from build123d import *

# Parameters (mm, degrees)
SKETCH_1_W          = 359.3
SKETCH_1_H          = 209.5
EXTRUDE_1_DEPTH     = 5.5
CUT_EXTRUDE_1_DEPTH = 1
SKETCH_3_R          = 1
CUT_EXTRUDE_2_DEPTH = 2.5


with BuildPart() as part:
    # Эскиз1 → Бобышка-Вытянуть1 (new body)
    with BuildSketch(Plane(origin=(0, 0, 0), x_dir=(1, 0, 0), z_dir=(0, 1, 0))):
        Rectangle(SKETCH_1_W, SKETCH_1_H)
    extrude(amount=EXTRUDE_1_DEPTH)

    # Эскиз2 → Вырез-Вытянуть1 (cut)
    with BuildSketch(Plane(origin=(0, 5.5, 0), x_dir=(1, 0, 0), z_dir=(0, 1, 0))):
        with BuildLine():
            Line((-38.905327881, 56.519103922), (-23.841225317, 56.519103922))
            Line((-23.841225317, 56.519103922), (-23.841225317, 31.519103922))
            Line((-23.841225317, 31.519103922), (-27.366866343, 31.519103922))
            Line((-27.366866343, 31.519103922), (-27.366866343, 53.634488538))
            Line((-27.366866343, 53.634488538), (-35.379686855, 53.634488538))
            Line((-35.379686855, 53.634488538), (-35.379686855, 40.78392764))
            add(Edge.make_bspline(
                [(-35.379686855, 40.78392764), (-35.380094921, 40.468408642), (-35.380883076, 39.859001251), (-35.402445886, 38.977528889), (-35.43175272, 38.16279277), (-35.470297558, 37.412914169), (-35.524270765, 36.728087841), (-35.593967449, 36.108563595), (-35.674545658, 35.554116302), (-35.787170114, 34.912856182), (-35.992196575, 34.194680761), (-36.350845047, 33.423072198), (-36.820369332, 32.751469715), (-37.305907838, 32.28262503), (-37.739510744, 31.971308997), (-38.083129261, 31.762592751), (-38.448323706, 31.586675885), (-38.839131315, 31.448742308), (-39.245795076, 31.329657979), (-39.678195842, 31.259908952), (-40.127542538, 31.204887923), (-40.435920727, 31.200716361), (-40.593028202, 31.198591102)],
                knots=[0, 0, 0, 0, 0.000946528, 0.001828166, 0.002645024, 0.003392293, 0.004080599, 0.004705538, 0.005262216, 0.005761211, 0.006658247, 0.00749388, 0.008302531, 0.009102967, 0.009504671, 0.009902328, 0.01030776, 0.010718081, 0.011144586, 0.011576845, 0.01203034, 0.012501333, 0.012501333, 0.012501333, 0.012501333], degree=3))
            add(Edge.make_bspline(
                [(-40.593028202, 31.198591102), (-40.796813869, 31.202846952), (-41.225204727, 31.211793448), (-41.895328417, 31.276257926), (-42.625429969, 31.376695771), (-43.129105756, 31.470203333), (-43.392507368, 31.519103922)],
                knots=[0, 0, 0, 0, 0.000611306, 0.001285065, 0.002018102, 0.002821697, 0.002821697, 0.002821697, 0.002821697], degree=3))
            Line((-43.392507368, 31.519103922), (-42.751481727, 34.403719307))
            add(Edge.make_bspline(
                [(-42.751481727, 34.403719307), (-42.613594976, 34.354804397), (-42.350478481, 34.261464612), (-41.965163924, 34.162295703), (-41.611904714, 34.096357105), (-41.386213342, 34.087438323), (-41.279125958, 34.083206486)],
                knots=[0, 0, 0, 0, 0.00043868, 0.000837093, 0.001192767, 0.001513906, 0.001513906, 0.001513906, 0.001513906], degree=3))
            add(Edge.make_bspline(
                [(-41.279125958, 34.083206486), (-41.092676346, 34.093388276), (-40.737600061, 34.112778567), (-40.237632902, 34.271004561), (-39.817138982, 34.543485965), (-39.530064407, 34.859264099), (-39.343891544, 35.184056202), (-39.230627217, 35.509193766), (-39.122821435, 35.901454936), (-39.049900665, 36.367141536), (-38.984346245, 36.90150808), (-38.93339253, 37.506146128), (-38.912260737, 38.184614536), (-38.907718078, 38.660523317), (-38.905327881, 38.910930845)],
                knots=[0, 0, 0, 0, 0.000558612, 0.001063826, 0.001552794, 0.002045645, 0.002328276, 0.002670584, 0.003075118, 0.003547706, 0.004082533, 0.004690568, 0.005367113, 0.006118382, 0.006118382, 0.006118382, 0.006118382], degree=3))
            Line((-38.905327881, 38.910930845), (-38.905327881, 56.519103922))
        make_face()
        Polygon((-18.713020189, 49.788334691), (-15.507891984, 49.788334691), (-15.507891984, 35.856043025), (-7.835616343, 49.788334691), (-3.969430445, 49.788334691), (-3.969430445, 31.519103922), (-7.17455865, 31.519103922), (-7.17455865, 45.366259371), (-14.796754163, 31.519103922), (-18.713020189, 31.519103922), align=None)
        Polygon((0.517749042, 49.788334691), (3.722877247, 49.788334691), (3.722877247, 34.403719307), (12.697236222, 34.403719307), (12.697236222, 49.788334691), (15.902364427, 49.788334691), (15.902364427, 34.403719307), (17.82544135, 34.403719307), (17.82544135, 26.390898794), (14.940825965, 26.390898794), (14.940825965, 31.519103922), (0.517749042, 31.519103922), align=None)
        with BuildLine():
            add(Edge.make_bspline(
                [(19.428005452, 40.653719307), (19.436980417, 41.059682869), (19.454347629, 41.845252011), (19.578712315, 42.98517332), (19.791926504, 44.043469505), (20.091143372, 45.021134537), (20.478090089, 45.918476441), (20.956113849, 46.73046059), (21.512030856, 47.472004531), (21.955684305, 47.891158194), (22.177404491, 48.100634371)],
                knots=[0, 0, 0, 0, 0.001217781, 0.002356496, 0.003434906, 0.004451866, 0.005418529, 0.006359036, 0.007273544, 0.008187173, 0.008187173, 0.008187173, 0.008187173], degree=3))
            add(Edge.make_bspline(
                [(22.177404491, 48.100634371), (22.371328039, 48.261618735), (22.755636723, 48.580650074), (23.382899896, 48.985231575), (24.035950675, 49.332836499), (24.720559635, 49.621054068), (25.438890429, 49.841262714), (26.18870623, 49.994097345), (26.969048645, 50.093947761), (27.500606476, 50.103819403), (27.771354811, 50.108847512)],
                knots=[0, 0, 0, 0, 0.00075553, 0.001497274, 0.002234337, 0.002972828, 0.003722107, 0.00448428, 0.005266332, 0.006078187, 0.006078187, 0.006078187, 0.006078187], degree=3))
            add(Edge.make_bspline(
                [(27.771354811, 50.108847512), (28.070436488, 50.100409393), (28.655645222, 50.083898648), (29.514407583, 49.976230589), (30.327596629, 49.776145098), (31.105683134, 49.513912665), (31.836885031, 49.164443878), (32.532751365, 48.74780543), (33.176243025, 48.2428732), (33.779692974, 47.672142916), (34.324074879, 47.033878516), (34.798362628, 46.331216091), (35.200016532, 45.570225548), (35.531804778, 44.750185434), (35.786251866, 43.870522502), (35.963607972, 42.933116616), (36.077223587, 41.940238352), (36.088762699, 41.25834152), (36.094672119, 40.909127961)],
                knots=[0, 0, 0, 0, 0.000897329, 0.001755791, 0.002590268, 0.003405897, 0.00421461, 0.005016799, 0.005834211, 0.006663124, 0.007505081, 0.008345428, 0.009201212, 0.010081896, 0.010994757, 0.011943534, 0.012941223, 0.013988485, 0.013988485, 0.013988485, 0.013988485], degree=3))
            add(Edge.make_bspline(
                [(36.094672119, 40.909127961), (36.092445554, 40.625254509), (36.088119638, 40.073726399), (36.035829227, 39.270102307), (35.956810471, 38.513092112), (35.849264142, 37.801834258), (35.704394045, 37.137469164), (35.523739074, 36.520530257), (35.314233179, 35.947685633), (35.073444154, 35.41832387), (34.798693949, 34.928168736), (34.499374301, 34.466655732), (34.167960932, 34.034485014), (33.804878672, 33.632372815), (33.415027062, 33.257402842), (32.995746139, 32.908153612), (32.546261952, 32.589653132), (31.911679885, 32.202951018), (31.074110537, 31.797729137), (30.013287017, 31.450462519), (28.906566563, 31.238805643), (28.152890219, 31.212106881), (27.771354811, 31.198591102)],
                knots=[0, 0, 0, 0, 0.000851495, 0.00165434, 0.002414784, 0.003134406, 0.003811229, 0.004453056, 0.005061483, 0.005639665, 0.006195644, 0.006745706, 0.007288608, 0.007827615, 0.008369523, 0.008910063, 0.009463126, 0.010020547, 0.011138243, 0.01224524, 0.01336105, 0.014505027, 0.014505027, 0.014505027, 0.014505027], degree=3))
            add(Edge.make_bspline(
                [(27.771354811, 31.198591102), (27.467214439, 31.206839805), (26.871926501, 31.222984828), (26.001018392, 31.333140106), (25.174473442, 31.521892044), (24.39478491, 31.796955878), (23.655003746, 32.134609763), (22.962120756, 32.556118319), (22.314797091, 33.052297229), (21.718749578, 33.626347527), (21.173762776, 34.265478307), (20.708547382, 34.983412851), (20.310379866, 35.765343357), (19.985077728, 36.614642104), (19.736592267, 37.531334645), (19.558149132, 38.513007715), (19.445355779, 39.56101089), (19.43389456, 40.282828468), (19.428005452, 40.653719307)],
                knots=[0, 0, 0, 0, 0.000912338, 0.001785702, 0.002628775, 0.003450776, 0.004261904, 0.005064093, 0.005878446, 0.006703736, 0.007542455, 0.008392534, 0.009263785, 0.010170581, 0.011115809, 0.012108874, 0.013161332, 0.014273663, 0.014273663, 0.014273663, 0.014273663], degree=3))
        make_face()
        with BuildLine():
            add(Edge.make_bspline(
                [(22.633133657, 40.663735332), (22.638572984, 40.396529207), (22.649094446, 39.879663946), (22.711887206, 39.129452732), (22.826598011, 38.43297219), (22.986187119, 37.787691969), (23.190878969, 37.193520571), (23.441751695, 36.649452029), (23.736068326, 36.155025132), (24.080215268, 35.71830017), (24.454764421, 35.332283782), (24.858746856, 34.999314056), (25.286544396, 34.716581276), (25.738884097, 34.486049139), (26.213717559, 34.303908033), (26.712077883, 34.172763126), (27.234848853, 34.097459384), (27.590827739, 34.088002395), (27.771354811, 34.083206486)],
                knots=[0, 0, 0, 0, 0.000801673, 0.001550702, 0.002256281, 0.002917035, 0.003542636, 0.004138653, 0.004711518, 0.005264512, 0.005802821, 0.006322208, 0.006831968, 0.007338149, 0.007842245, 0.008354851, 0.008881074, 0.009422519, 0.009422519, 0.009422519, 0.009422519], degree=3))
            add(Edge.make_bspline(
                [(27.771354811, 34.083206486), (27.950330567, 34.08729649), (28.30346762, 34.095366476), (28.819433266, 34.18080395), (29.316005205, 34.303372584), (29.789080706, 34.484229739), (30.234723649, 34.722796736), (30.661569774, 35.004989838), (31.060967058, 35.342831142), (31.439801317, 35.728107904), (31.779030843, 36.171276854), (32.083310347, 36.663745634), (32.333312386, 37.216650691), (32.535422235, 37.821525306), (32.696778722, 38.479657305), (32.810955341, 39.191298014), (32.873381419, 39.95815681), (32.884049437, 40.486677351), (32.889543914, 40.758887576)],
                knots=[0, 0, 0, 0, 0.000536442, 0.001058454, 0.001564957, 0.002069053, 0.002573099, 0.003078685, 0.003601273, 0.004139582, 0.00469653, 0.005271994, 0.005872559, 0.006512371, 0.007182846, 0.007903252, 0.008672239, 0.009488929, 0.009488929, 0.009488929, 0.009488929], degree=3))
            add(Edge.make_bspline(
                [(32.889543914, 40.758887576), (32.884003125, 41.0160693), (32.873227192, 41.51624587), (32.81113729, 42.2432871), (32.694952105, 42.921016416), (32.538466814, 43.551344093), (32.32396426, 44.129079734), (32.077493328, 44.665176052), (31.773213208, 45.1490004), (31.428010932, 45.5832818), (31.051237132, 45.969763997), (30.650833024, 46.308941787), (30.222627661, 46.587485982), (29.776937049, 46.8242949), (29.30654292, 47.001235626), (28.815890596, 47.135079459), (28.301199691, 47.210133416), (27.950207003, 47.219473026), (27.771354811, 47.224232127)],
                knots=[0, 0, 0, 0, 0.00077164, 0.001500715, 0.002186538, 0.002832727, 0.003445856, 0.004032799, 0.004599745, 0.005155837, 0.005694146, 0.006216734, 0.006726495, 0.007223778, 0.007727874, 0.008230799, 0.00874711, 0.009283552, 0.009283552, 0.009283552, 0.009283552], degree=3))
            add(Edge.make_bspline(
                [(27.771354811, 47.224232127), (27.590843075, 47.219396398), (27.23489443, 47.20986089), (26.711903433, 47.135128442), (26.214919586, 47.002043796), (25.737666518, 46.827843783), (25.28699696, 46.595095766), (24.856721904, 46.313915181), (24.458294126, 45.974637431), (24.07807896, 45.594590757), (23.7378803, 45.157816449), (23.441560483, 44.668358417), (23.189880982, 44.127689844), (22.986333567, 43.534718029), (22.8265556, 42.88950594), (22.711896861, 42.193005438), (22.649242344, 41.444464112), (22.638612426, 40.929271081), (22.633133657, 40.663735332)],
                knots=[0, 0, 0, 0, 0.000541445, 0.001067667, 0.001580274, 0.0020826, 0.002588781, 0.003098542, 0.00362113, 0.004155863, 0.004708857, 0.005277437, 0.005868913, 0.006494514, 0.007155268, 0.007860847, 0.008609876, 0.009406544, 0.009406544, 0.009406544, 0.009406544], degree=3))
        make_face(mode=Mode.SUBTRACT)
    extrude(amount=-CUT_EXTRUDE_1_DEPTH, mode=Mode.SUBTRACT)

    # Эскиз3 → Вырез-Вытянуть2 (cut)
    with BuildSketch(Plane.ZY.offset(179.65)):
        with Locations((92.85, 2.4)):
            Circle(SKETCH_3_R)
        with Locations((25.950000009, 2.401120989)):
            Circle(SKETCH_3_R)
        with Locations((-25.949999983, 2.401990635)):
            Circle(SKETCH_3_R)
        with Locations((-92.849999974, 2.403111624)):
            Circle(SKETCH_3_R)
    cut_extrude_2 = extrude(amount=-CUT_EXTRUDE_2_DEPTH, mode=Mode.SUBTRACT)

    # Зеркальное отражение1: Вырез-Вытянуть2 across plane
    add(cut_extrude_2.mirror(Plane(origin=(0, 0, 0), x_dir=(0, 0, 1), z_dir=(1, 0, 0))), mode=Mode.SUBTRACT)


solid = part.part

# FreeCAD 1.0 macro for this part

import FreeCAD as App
import Part
import Sketcher

V = App.Vector
Q = App.Units.Quantity

doc = App.newDocument("Part")
params = doc.addObject("Spreadsheet::Sheet", "Params")
for row, (alias, value) in enumerate([
    ("sketch1_width", "359.3 mm"),
    ("sketch1_height", "209.5 mm"),
    ("pad1_length", "5.5 mm"),
    ("sketch2_height", "25 mm"),
    ("pocket1_length", "1 mm"),
    ("sketch3_diameter", "2 mm"),
    ("pocket2_length", "2.5 mm"),
], start=1):
    params.set(f"A{row}", alias)
    params.set(f"B{row}", "=" + value)
    params.setAlias(f"B{row}", alias)

body = doc.addObject("PartDesign::Body", "Body")

sketch1 = body.newObject("Sketcher::SketchObject", "Sketch")
sketch1.AttachmentSupport = (doc.getObject("XZ_Plane"), [""])
sketch1.MapMode = "FlatFace"
sketch1.addGeometry([
    Part.LineSegment(V(-179.65, -104.75, 0), V(-179.65, 104.75, 0)),
    Part.LineSegment(V(-179.65, 104.75, 0), V(179.65, 104.75, 0)),
    Part.LineSegment(V(179.65, 104.75, 0), V(179.65, -104.75, 0)),
    Part.LineSegment(V(179.65, -104.75, 0), V(-179.65, -104.75, 0)),
], False)
sketch1.addConstraint([
    Sketcher.Constraint("Coincident", 0, 2, 1, 1),
    Sketcher.Constraint("Coincident", 1, 2, 2, 1),
    Sketcher.Constraint("Coincident", 2, 2, 3, 1),
    Sketcher.Constraint("Coincident", 3, 2, 0, 1),
    Sketcher.Constraint("Vertical", 0),
    Sketcher.Constraint("Horizontal", 1),
    Sketcher.Constraint("Vertical", 2),
    Sketcher.Constraint("Horizontal", 3),
    Sketcher.Constraint("Symmetric", 0, 2, 2, 2, -1, 1),
    Sketcher.Constraint("DistanceX", 1, 1, 1, 2, Q("359.3 mm")),
    Sketcher.Constraint("DistanceY", 0, 1, 0, 2, Q("209.5 mm")),
])
sketch1.setExpression("Constraints[9]", "Params.sketch1_width")
sketch1.setExpression("Constraints[10]", "Params.sketch1_height")
pad1 = body.newObject("PartDesign::Pad", "Pad")
pad1.Profile = sketch1
pad1.setExpression("Length", "Params.pad1_length")
pad1.Reversed = True

sketch2 = body.newObject("Sketcher::SketchObject", "Sketch001")
sketch2.AttachmentSupport = (doc.getObject("XZ_Plane"), [""])
sketch2.MapMode = "FlatFace"
sketch2.AttachmentOffset = App.Placement(V(0, 0, -5.5), App.Rotation())
sketch2.addGeometry([
    Part.LineSegment(V(-23.841225, -56.519104, 0), V(-38.905328, -56.519104, 0)),
    Part.LineSegment(V(-38.905328, -56.519104, 0), V(-38.905328, -38.910931, 0)),
    Part.BSplineCurve([V(-41.279126, -34.083206, 0), V(-41.092676, -34.093388, 0), V(-40.7376, -34.112779, 0), V(-40.237633, -34.271005, 0), V(-39.817139, -34.543486, 0), V(-39.530064, -34.859264, 0), V(-39.343892, -35.184056, 0), V(-39.230627, -35.509194, 0), V(-39.122821, -35.901455, 0), V(-39.049901, -36.367142, 0), V(-38.984346, -36.901508, 0), V(-38.933393, -37.506146, 0), V(-38.912261, -38.184615, 0), V(-38.907718, -38.660523, 0), V(-38.905328, -38.910931, 0)], [4, 1, 1, 1, 1, 1, 1, 1, 1, 1, 1, 1, 4], [0, 0.000558612, 0.001063826, 0.001552794, 0.002045645, 0.002328276, 0.002670584, 0.003075118, 0.003547706, 0.004082533, 0.004690568, 0.005367113, 0.006118382], False, 3, [1, 1, 1, 1, 1, 1, 1, 1, 1, 1, 1, 1, 1, 1, 1], False),
    Part.BSplineCurve([V(-42.751482, -34.403719, 0), V(-42.613595, -34.354804, 0), V(-42.350478, -34.261465, 0), V(-41.965164, -34.162296, 0), V(-41.611905, -34.096357, 0), V(-41.386213, -34.087438, 0), V(-41.279126, -34.083206, 0)], [4, 1, 1, 1, 4], [0, 0.00043868, 0.000837093, 0.001192767, 0.001513906], False, 3, [1, 1, 1, 1, 1, 1, 1], False),
    Part.LineSegment(V(-42.751482, -34.403719, 0), V(-43.392507, -31.519104, 0)),
    Part.BSplineCurve([V(-40.593028, -31.198591, 0), V(-40.796814, -31.202847, 0), V(-41.225205, -31.211793, 0), V(-41.895328, -31.276258, 0), V(-42.62543, -31.376696, 0), V(-43.129106, -31.470203, 0), V(-43.392507, -31.519104, 0)], [4, 1, 1, 1, 4], [0, 0.000611306, 0.001285065, 0.002018102, 0.002821697], False, 3, [1, 1, 1, 1, 1, 1, 1], False),
    Part.BSplineCurve([V(-35.379687, -40.783928, 0), V(-35.380095, -40.468409, 0), V(-35.380883, -39.859001, 0), V(-35.402446, -38.977529, 0), V(-35.431753, -38.162793, 0), V(-35.470298, -37.412914, 0), V(-35.524271, -36.728088, 0), V(-35.593967, -36.108564, 0), V(-35.674546, -35.554116, 0), V(-35.78717, -34.912856, 0), V(-35.992197, -34.194681, 0), V(-36.350845, -33.423072, 0), V(-36.820369, -32.75147, 0), V(-37.305908, -32.282625, 0), V(-37.739511, -31.971309, 0), V(-38.083129, -31.762593, 0), V(-38.448324, -31.586676, 0), V(-38.839131, -31.448742, 0), V(-39.245795, -31.329658, 0), V(-39.678196, -31.259909, 0), V(-40.127543, -31.204888, 0), V(-40.435921, -31.200716, 0), V(-40.593028, -31.198591, 0)], [4, 1, 1, 1, 1, 1, 1, 1, 1, 1, 1, 1, 1, 1, 1, 1, 1, 1, 1, 1, 4], [0, 0.000946528, 0.001828166, 0.002645024, 0.003392293, 0.004080599, 0.004705538, 0.005262216, 0.005761211, 0.006658247, 0.00749388, 0.008302531, 0.009102967, 0.009504671, 0.009902328, 0.01030776, 0.010718081, 0.011144586, 0.011576845, 0.01203034, 0.012501333], False, 3, [1, 1, 1, 1, 1, 1, 1, 1, 1, 1, 1, 1, 1, 1, 1, 1, 1, 1, 1, 1, 1, 1, 1], False),
    Part.LineSegment(V(-35.379687, -40.783928, 0), V(-35.379687, -53.634489, 0)),
    Part.LineSegment(V(-35.379687, -53.634489, 0), V(-27.366866, -53.634489, 0)),
    Part.LineSegment(V(-27.366866, -53.634489, 0), V(-27.366866, -31.519104, 0)),
    Part.LineSegment(V(-27.366866, -31.519104, 0), V(-23.841225, -31.519104, 0)),
    Part.LineSegment(V(-23.841225, -31.519104, 0), V(-23.841225, -56.519104, 0)),
    Part.LineSegment(V(-15.507892, -49.788335, 0), V(-18.71302, -49.788335, 0)),
    Part.LineSegment(V(-18.71302, -49.788335, 0), V(-18.71302, -31.519104, 0)),
    Part.LineSegment(V(-18.71302, -31.519104, 0), V(-14.796754, -31.519104, 0)),
    Part.LineSegment(V(-14.796754, -31.519104, 0), V(-7.174559, -45.366259, 0)),
    Part.LineSegment(V(-7.174559, -45.366259, 0), V(-7.174559, -31.519104, 0)),
    Part.LineSegment(V(-7.174559, -31.519104, 0), V(-3.96943, -31.519104, 0)),
    Part.LineSegment(V(-3.96943, -31.519104, 0), V(-3.96943, -49.788335, 0)),
    Part.LineSegment(V(-3.96943, -49.788335, 0), V(-7.835616, -49.788335, 0)),
    Part.LineSegment(V(-7.835616, -49.788335, 0), V(-15.507892, -35.856043, 0)),
    Part.LineSegment(V(-15.507892, -35.856043, 0), V(-15.507892, -49.788335, 0)),
    Part.LineSegment(V(3.722877, -49.788335, 0), V(0.517749, -49.788335, 0)),
    Part.LineSegment(V(0.517749, -49.788335, 0), V(0.517749, -31.519104, 0)),
    Part.LineSegment(V(0.517749, -31.519104, 0), V(14.940826, -31.519104, 0)),
    Part.LineSegment(V(14.940826, -31.519104, 0), V(14.940826, -26.390899, 0)),
    Part.LineSegment(V(14.940826, -26.390899, 0), V(17.825441, -26.390899, 0)),
    Part.LineSegment(V(17.825441, -26.390899, 0), V(17.825441, -34.403719, 0)),
    Part.LineSegment(V(17.825441, -34.403719, 0), V(15.902364, -34.403719, 0)),
    Part.LineSegment(V(15.902364, -34.403719, 0), V(15.902364, -49.788335, 0)),
    Part.LineSegment(V(15.902364, -49.788335, 0), V(12.697236, -49.788335, 0)),
    Part.LineSegment(V(12.697236, -49.788335, 0), V(12.697236, -34.403719, 0)),
    Part.LineSegment(V(12.697236, -34.403719, 0), V(3.722877, -34.403719, 0)),
    Part.LineSegment(V(3.722877, -34.403719, 0), V(3.722877, -49.788335, 0)),
    Part.BSplineCurve([V(19.428005, -40.653719, 0), V(19.43698, -41.059683, 0), V(19.454348, -41.845252, 0), V(19.578712, -42.985173, 0), V(19.791927, -44.04347, 0), V(20.091143, -45.021135, 0), V(20.47809, -45.918476, 0), V(20.956114, -46.730461, 0), V(21.512031, -47.472005, 0), V(21.955684, -47.891158, 0), V(22.177404, -48.100634, 0)], [4, 1, 1, 1, 1, 1, 1, 1, 4], [0, 0.001217781, 0.002356496, 0.003434906, 0.004451866, 0.005418529, 0.006359036, 0.007273544, 0.008187173], False, 3, [1, 1, 1, 1, 1, 1, 1, 1, 1, 1, 1], False),
    Part.BSplineCurve([V(27.771355, -31.198591, 0), V(27.467214, -31.20684, 0), V(26.871927, -31.222985, 0), V(26.001018, -31.33314, 0), V(25.174473, -31.521892, 0), V(24.394785, -31.796956, 0), V(23.655004, -32.13461, 0), V(22.962121, -32.556118, 0), V(22.314797, -33.052297, 0), V(21.71875, -33.626348, 0), V(21.173763, -34.265478, 0), V(20.708547, -34.983413, 0), V(20.31038, -35.765343, 0), V(19.985078, -36.614642, 0), V(19.736592, -37.531335, 0), V(19.558149, -38.513008, 0), V(19.445356, -39.561011, 0), V(19.433895, -40.282828, 0), V(19.428005, -40.653719, 0)], [4, 1, 1, 1, 1, 1, 1, 1, 1, 1, 1, 1, 1, 1, 1, 1, 4], [0, 0.000912338, 0.001785702, 0.002628775, 0.003450776, 0.004261904, 0.005064093, 0.005878446, 0.006703736, 0.007542455, 0.008392534, 0.009263785, 0.010170581, 0.011115809, 0.012108874, 0.013161332, 0.014273663], False, 3, [1, 1, 1, 1, 1, 1, 1, 1, 1, 1, 1, 1, 1, 1, 1, 1, 1, 1, 1], False),
    Part.BSplineCurve([V(36.094672, -40.909128, 0), V(36.092446, -40.625255, 0), V(36.08812, -40.073726, 0), V(36.035829, -39.270102, 0), V(35.95681, -38.513092, 0), V(35.849264, -37.801834, 0), V(35.704394, -37.137469, 0), V(35.523739, -36.52053, 0), V(35.314233, -35.947686, 0), V(35.073444, -35.418324, 0), V(34.798694, -34.928169, 0), V(34.499374, -34.466656, 0), V(34.167961, -34.034485, 0), V(33.804879, -33.632373, 0), V(33.415027, -33.257403, 0), V(32.995746, -32.908154, 0), V(32.546262, -32.589653, 0), V(31.91168, -32.202951, 0), V(31.074111, -31.797729, 0), V(30.013287, -31.450463, 0), V(28.906567, -31.238806, 0), V(28.15289, -31.212107, 0), V(27.771355, -31.198591, 0)], [4, 1, 1, 1, 1, 1, 1, 1, 1, 1, 1, 1, 1, 1, 1, 1, 1, 1, 1, 1, 4], [0, 0.000851495, 0.00165434, 0.002414784, 0.003134406, 0.003811229, 0.004453056, 0.005061483, 0.005639665, 0.006195644, 0.006745706, 0.007288608, 0.007827615, 0.008369523, 0.008910063, 0.009463126, 0.010020547, 0.011138243, 0.01224524, 0.01336105, 0.014505027], False, 3, [1, 1, 1, 1, 1, 1, 1, 1, 1, 1, 1, 1, 1, 1, 1, 1, 1, 1, 1, 1, 1, 1, 1], False),
    Part.BSplineCurve([V(27.771355, -50.108848, 0), V(28.070436, -50.100409, 0), V(28.655645, -50.083899, 0), V(29.514408, -49.976231, 0), V(30.327597, -49.776145, 0), V(31.105683, -49.513913, 0), V(31.836885, -49.164444, 0), V(32.532751, -48.747805, 0), V(33.176243, -48.242873, 0), V(33.779693, -47.672143, 0), V(34.324075, -47.033879, 0), V(34.798363, -46.331216, 0), V(35.200017, -45.570226, 0), V(35.531805, -44.750185, 0), V(35.786252, -43.870523, 0), V(35.963608, -42.933117, 0), V(36.077224, -41.940238, 0), V(36.088763, -41.258342, 0), V(36.094672, -40.909128, 0)], [4, 1, 1, 1, 1, 1, 1, 1, 1, 1, 1, 1, 1, 1, 1, 1, 4], [0, 0.000897329, 0.001755791, 0.002590268, 0.003405897, 0.00421461, 0.005016799, 0.005834211, 0.006663124, 0.007505081, 0.008345428, 0.009201212, 0.010081896, 0.010994757, 0.011943534, 0.012941223, 0.013988485], False, 3, [1, 1, 1, 1, 1, 1, 1, 1, 1, 1, 1, 1, 1, 1, 1, 1, 1, 1, 1], False),
    Part.BSplineCurve([V(22.177404, -48.100634, 0), V(22.371328, -48.261619, 0), V(22.755637, -48.58065, 0), V(23.3829, -48.985232, 0), V(24.035951, -49.332836, 0), V(24.72056, -49.621054, 0), V(25.43889, -49.841263, 0), V(26.188706, -49.994097, 0), V(26.969049, -50.093948, 0), V(27.500606, -50.103819, 0), V(27.771355, -50.108848, 0)], [4, 1, 1, 1, 1, 1, 1, 1, 4], [0, 0.00075553, 0.001497274, 0.002234337, 0.002972828, 0.003722107, 0.00448428, 0.005266332, 0.006078187], False, 3, [1, 1, 1, 1, 1, 1, 1, 1, 1, 1, 1], False),
    Part.BSplineCurve([V(27.771355, -47.224232, 0), V(27.590843, -47.219396, 0), V(27.234894, -47.209861, 0), V(26.711903, -47.135128, 0), V(26.21492, -47.002044, 0), V(25.737667, -46.827844, 0), V(25.286997, -46.595096, 0), V(24.856722, -46.313915, 0), V(24.458294, -45.974637, 0), V(24.078079, -45.594591, 0), V(23.73788, -45.157816, 0), V(23.44156, -44.668358, 0), V(23.189881, -44.12769, 0), V(22.986334, -43.534718, 0), V(22.826556, -42.889506, 0), V(22.711897, -42.193005, 0), V(22.649242, -41.444464, 0), V(22.638612, -40.929271, 0), V(22.633134, -40.663735, 0)], [4, 1, 1, 1, 1, 1, 1, 1, 1, 1, 1, 1, 1, 1, 1, 1, 4], [0, 0.000541445, 0.001067667, 0.001580274, 0.0020826, 0.002588781, 0.003098542, 0.00362113, 0.004155863, 0.004708857, 0.005277437, 0.005868913, 0.006494514, 0.007155268, 0.007860847, 0.008609876, 0.009406544], False, 3, [1, 1, 1, 1, 1, 1, 1, 1, 1, 1, 1, 1, 1, 1, 1, 1, 1, 1, 1], False),
    Part.BSplineCurve([V(32.889544, -40.758888, 0), V(32.884003, -41.016069, 0), V(32.873227, -41.516246, 0), V(32.811137, -42.243287, 0), V(32.694952, -42.921016, 0), V(32.538467, -43.551344, 0), V(32.323964, -44.12908, 0), V(32.077493, -44.665176, 0), V(31.773213, -45.149, 0), V(31.428011, -45.583282, 0), V(31.051237, -45.969764, 0), V(30.650833, -46.308942, 0), V(30.222628, -46.587486, 0), V(29.776937, -46.824295, 0), V(29.306543, -47.001236, 0), V(28.815891, -47.135079, 0), V(28.3012, -47.210133, 0), V(27.950207, -47.219473, 0), V(27.771355, -47.224232, 0)], [4, 1, 1, 1, 1, 1, 1, 1, 1, 1, 1, 1, 1, 1, 1, 1, 4], [0, 0.00077164, 0.001500715, 0.002186538, 0.002832727, 0.003445856, 0.004032799, 0.004599745, 0.005155837, 0.005694146, 0.006216734, 0.006726495, 0.007223778, 0.007727874, 0.008230799, 0.00874711, 0.009283552], False, 3, [1, 1, 1, 1, 1, 1, 1, 1, 1, 1, 1, 1, 1, 1, 1, 1, 1, 1, 1], False),
    Part.BSplineCurve([V(27.771355, -34.083206, 0), V(27.950331, -34.087296, 0), V(28.303468, -34.095366, 0), V(28.819433, -34.180804, 0), V(29.316005, -34.303373, 0), V(29.789081, -34.48423, 0), V(30.234724, -34.722797, 0), V(30.66157, -35.00499, 0), V(31.060967, -35.342831, 0), V(31.439801, -35.728108, 0), V(31.779031, -36.171277, 0), V(32.08331, -36.663746, 0), V(32.333312, -37.216651, 0), V(32.535422, -37.821525, 0), V(32.696779, -38.479657, 0), V(32.810955, -39.191298, 0), V(32.873381, -39.958157, 0), V(32.884049, -40.486677, 0), V(32.889544, -40.758888, 0)], [4, 1, 1, 1, 1, 1, 1, 1, 1, 1, 1, 1, 1, 1, 1, 1, 4], [0, 0.000536442, 0.001058454, 0.001564957, 0.002069053, 0.002573099, 0.003078685, 0.003601273, 0.004139582, 0.00469653, 0.005271994, 0.005872559, 0.006512371, 0.007182846, 0.007903252, 0.008672239, 0.009488929], False, 3, [1, 1, 1, 1, 1, 1, 1, 1, 1, 1, 1, 1, 1, 1, 1, 1, 1, 1, 1], False),
    Part.BSplineCurve([V(22.633134, -40.663735, 0), V(22.638573, -40.396529, 0), V(22.649094, -39.879664, 0), V(22.711887, -39.129453, 0), V(22.826598, -38.432972, 0), V(22.986187, -37.787692, 0), V(23.190879, -37.193521, 0), V(23.441752, -36.649452, 0), V(23.736068, -36.155025, 0), V(24.080215, -35.7183, 0), V(24.454764, -35.332284, 0), V(24.858747, -34.999314, 0), V(25.286544, -34.716581, 0), V(25.738884, -34.486049, 0), V(26.213718, -34.303908, 0), V(26.712078, -34.172763, 0), V(27.234849, -34.097459, 0), V(27.590828, -34.088002, 0), V(27.771355, -34.083206, 0)], [4, 1, 1, 1, 1, 1, 1, 1, 1, 1, 1, 1, 1, 1, 1, 1, 4], [0, 0.000801673, 0.001550702, 0.002256281, 0.002917035, 0.003542636, 0.004138653, 0.004711518, 0.005264512, 0.005802821, 0.006322208, 0.006831968, 0.007338149, 0.007842245, 0.008354851, 0.008881074, 0.009422519], False, 3, [1, 1, 1, 1, 1, 1, 1, 1, 1, 1, 1, 1, 1, 1, 1, 1, 1, 1, 1], False),
], False)
sketch2.addConstraint([
    Sketcher.Constraint("Block", 2),
    Sketcher.Constraint("Block", 3),
    Sketcher.Constraint("Block", 5),
    Sketcher.Constraint("Block", 6),
    Sketcher.Constraint("Block", 34),
    Sketcher.Constraint("Block", 35),
    Sketcher.Constraint("Block", 36),
    Sketcher.Constraint("Block", 37),
    Sketcher.Constraint("Block", 38),
    Sketcher.Constraint("Block", 39),
    Sketcher.Constraint("Block", 40),
    Sketcher.Constraint("Block", 41),
    Sketcher.Constraint("Block", 42),
    Sketcher.Constraint("Coincident", 0, 2, 1, 1),
    Sketcher.Constraint("Coincident", 1, 2, 2, 2),
    Sketcher.Constraint("Coincident", 3, 1, 4, 1),
    Sketcher.Constraint("Coincident", 4, 2, 5, 2),
    Sketcher.Constraint("Coincident", 6, 1, 7, 1),
    Sketcher.Constraint("Coincident", 7, 2, 8, 1),
    Sketcher.Constraint("Coincident", 8, 2, 9, 1),
    Sketcher.Constraint("Coincident", 9, 2, 10, 1),
    Sketcher.Constraint("Coincident", 10, 2, 11, 1),
    Sketcher.Constraint("Coincident", 11, 2, 0, 1),
    Sketcher.Constraint("Coincident", 12, 2, 13, 1),
    Sketcher.Constraint("Coincident", 13, 2, 14, 1),
    Sketcher.Constraint("Coincident", 14, 2, 15, 1),
    Sketcher.Constraint("Coincident", 15, 2, 16, 1),
    Sketcher.Constraint("Coincident", 16, 2, 17, 1),
    Sketcher.Constraint("Coincident", 17, 2, 18, 1),
    Sketcher.Constraint("Coincident", 18, 2, 19, 1),
    Sketcher.Constraint("Coincident", 19, 2, 20, 1),
    Sketcher.Constraint("Coincident", 20, 2, 21, 1),
    Sketcher.Constraint("Coincident", 21, 2, 12, 1),
    Sketcher.Constraint("Coincident", 22, 2, 23, 1),
    Sketcher.Constraint("Coincident", 23, 2, 24, 1),
    Sketcher.Constraint("Coincident", 24, 2, 25, 1),
    Sketcher.Constraint("Coincident", 25, 2, 26, 1),
    Sketcher.Constraint("Coincident", 26, 2, 27, 1),
    Sketcher.Constraint("Coincident", 27, 2, 28, 1),
    Sketcher.Constraint("Coincident", 28, 2, 29, 1),
    Sketcher.Constraint("Coincident", 29, 2, 30, 1),
    Sketcher.Constraint("Coincident", 30, 2, 31, 1),
    Sketcher.Constraint("Coincident", 31, 2, 32, 1),
    Sketcher.Constraint("Coincident", 32, 2, 33, 1),
    Sketcher.Constraint("Coincident", 33, 2, 22, 1),
    Sketcher.Constraint("Horizontal", 0),
    Sketcher.Constraint("Vertical", 1),
    Sketcher.Constraint("Vertical", 7),
    Sketcher.Constraint("Horizontal", 8),
    Sketcher.Constraint("Vertical", 9),
    Sketcher.Constraint("Horizontal", 10),
    Sketcher.Constraint("Vertical", 11),
    Sketcher.Constraint("Horizontal", 12),
    Sketcher.Constraint("Vertical", 13),
    Sketcher.Constraint("Horizontal", 14),
    Sketcher.Constraint("Vertical", 16),
    Sketcher.Constraint("Horizontal", 17),
    Sketcher.Constraint("Vertical", 18),
    Sketcher.Constraint("Horizontal", 19),
    Sketcher.Constraint("Vertical", 21),
    Sketcher.Constraint("Horizontal", 22),
    Sketcher.Constraint("Vertical", 23),
    Sketcher.Constraint("Horizontal", 24),
    Sketcher.Constraint("Vertical", 25),
    Sketcher.Constraint("Horizontal", 26),
    Sketcher.Constraint("Vertical", 27),
    Sketcher.Constraint("Horizontal", 28),
    Sketcher.Constraint("Vertical", 29),
    Sketcher.Constraint("Horizontal", 30),
    Sketcher.Constraint("Vertical", 31),
    Sketcher.Constraint("Horizontal", 32),
    Sketcher.Constraint("Vertical", 33),
    Sketcher.Constraint("Horizontal", 4, 2, 9, 2),
    Sketcher.Constraint("Horizontal", 10, 2, 13, 2),
    Sketcher.Constraint("Horizontal", 14, 2, 16, 2),
    Sketcher.Constraint("Horizontal", 12, 2, 18, 2),
    Sketcher.Constraint("Horizontal", 21, 2, 22, 2),
    Sketcher.Constraint("Horizontal", 17, 2, 23, 2),
    Sketcher.Constraint("Horizontal", 22, 2, 29, 2),
    Sketcher.Constraint("Horizontal", 28, 2, 31, 2),
    Sketcher.Constraint("Equal", 12, 17),
    Sketcher.Constraint("Equal", 17, 22),
    Sketcher.Constraint("Equal", 22, 30),
    Sketcher.Constraint("Equal", 8, 27),
    Sketcher.Constraint("DistanceY", 11, 2, 11, 1, Q("25 mm")),
    Sketcher.Constraint("DistanceX", 16, 2, 26, 2, Q("25 mm")),
    Sketcher.Constraint("DistanceX", 8, 1, 8, 2, Q("8.012821 mm")),
    Sketcher.Constraint("DistanceX", 10, 1, 10, 2, Q("3.525641 mm")),
    Sketcher.Constraint("DistanceX", 12, 2, 12, 1, Q("3.205128 mm")),
    Sketcher.Constraint("DistanceX", 32, 2, 32, 1, Q("8.974359 mm")),
    Sketcher.Constraint("DistanceY", 7, 2, 7, 1, Q("12.850561 mm")),
    Sketcher.Constraint("DistanceY", 13, 1, 13, 2, Q("18.269231 mm")),
    Sketcher.Constraint("DistanceY", 21, 2, 21, 1, Q("13.932292 mm")),
    Sketcher.Constraint("DistanceY", 25, 2, -1, 1, Q("26.390899 mm")),
    Sketcher.Constraint("Distance", 20, Q("15.905111 mm")),
    Sketcher.Constraint("DistanceX", 14, 1, 14, 2, Q("3.916266 mm")),
    Sketcher.Constraint("DistanceX", 19, 2, 19, 1, Q("3.866186 mm")),
    Sketcher.Constraint("DistanceX", 24, 1, 24, 2, Q("14.423077 mm")),
    Sketcher.Constraint("DistanceX", 26, 1, 26, 2, Q("2.884615 mm")),
    Sketcher.Constraint("DistanceY", 16, 1, 16, 2, Q("13.847155 mm")),
    Sketcher.Constraint("DistanceX", 12, 2, -1, 1, Q("18.71302 mm")),
])
sketch2.setExpression("Constraints[84]", "Params.sketch2_height")
pocket1 = body.newObject("PartDesign::Pocket", "Pocket")
pocket1.Profile = sketch2
pocket1.setExpression("Length", "Params.pocket1_length")
pocket1.Reversed = True

sketch3 = body.newObject("Sketcher::SketchObject", "Sketch002")
sketch3.AttachmentSupport = (doc.getObject("YZ_Plane"), [""])
sketch3.MapMode = "FlatFace"
sketch3.AttachmentOffset = App.Placement(V(0, 0, -179.65), App.Rotation())
sketch3.addGeometry([
    Part.Circle(V(2.4, 92.85, 0), V(0, 0, 1), 1),
    Part.Circle(V(2.401121, 25.95, 0), V(0, 0, 1), 1),
    Part.Circle(V(2.401991, -25.95, 0), V(0, 0, 1), 1),
    Part.Circle(V(2.403112, -92.85, 0), V(0, 0, 1), 1),
], False)
sketch3.addConstraint([
    Sketcher.Constraint("Equal", 0, 1),
    Sketcher.Constraint("Equal", 1, 2),
    Sketcher.Constraint("Equal", 2, 3),
    Sketcher.Constraint("Diameter", 0, Q("2 mm")),
    Sketcher.Constraint("DistanceX", -1, 1, 0, 3, Q("2.4 mm")),
    Sketcher.Constraint("DistanceY", 1, 3, 0, 3, Q("66.9 mm")),
    Sketcher.Constraint("DistanceY", 2, 3, 1, 3, Q("51.9 mm")),
    Sketcher.Constraint("DistanceY", 3, 3, 2, 3, Q("66.9 mm")),
    Sketcher.Constraint("DistanceY", -1, 1, 0, 3, Q("92.85 mm")),
    Sketcher.Constraint("DistanceX", -1, 1, 1, 3, Q("2.401121 mm")),
    Sketcher.Constraint("DistanceX", -1, 1, 2, 3, Q("2.401991 mm")),
    Sketcher.Constraint("DistanceX", -1, 1, 3, 3, Q("2.403112 mm")),
])
sketch3.setExpression("Constraints[3]", "Params.sketch3_diameter")
pocket2 = body.newObject("PartDesign::Pocket", "Pocket001")
pocket2.Profile = sketch3
pocket2.setExpression("Length", "Params.pocket2_length")
pocket2.Reversed = True
doc.recompute()

mirrored = body.newObject("PartDesign::Mirrored", "Mirrored")
mirrored.Originals = [pocket2]
mirrored.MirrorPlane = (doc.getObject("YZ_Plane"), [""])
body.Tip = mirrored

doc.recompute()
